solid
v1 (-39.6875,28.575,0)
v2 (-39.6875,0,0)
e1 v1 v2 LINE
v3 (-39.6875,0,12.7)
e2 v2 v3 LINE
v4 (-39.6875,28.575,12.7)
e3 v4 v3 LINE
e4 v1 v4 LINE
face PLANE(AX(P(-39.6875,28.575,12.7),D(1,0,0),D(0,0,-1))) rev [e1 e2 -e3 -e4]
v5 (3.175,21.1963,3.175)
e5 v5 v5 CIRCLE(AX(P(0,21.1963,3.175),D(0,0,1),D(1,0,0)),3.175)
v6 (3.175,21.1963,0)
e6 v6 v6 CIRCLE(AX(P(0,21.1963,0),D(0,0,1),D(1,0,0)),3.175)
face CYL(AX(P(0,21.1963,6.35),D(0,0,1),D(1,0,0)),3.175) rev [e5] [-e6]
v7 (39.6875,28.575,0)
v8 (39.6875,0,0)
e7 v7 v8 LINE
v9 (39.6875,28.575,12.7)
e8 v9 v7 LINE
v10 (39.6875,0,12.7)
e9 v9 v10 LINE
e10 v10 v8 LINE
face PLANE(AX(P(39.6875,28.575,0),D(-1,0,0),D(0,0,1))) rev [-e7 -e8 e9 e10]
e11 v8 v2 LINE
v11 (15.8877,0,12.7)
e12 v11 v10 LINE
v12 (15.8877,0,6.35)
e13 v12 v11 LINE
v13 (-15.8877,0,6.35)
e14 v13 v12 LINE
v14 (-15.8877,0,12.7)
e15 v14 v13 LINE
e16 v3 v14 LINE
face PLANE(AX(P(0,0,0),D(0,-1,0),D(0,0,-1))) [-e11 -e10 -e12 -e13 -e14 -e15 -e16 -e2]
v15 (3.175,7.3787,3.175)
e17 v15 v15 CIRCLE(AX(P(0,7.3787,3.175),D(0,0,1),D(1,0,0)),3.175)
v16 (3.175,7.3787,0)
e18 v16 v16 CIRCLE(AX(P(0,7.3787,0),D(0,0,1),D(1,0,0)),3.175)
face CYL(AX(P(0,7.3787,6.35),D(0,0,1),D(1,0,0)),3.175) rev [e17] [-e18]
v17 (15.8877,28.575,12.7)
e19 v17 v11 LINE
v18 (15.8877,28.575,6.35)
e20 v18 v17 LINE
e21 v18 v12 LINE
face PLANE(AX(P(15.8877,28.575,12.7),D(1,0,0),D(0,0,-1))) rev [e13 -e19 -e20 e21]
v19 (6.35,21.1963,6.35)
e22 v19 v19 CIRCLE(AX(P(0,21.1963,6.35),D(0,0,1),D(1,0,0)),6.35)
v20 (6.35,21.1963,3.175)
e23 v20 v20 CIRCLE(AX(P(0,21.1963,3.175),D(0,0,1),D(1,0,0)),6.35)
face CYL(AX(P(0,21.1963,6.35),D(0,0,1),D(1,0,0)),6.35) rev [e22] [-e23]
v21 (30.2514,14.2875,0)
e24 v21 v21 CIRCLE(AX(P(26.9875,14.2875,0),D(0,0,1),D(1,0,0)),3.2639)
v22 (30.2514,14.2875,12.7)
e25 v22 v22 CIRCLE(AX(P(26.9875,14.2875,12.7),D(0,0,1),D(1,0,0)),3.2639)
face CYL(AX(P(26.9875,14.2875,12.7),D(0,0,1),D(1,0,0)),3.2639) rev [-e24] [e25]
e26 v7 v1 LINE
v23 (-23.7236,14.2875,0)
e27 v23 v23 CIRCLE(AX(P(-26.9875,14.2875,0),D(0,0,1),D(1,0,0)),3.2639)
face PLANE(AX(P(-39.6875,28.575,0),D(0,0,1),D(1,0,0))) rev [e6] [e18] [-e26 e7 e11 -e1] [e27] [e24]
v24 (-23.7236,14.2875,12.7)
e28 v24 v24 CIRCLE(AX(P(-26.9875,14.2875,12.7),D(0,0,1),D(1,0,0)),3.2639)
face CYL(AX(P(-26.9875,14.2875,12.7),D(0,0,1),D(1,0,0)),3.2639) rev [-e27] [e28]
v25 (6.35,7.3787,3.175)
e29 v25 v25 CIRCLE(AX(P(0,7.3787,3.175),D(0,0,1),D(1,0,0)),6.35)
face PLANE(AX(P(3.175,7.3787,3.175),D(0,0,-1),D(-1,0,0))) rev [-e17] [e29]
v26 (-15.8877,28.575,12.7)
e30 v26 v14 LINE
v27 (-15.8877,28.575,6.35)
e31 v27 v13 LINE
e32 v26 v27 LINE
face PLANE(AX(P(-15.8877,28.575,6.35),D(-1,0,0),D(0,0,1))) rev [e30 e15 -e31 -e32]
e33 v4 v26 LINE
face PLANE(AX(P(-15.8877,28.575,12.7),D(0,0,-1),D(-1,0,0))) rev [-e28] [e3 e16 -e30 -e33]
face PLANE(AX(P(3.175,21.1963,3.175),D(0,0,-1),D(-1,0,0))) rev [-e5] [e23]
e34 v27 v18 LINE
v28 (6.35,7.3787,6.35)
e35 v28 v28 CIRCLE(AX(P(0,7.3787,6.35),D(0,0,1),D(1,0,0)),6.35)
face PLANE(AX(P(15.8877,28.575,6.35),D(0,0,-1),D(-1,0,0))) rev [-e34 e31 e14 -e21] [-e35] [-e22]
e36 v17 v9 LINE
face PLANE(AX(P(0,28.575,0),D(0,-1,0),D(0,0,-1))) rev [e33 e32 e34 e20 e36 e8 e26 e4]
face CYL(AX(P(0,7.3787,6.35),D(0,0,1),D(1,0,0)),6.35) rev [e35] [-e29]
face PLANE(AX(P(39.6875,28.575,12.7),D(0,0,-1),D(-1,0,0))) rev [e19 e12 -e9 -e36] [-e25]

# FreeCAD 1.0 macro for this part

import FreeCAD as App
import Part
import Sketcher

V = App.Vector
Q = App.Units.Quantity


def add_polygon(sketch, points):
    """Adds a closed chain of lines whose ends are joined by coincident constraints."""
    first, n = sketch.GeometryCount, len(points)
    for a, b in zip(points, points[1:] + points[:1]):
        sketch.addGeometry(Part.LineSegment(App.Vector(*a, 0), App.Vector(*b, 0)), False)
    for i in range(n):
        sketch.addConstraint(Sketcher.Constraint("Coincident", first + i, 2, first + (i + 1) % n, 1))

doc = App.newDocument("Part")
params = doc.addObject("Spreadsheet::Sheet", "Params")
for row, (alias, value) in enumerate([
    ("sketch1_height", "0.5 in"),
    ("sketch1_height2", "0.25 in"),
    ("sketch1_width", "3.125 in"),
    ("sketch1_width2", "0.937 in"),
    ("pad1_length", "1.125 in"),
    ("sketch2_diameter", "0.25 in"),
    ("hole_diameter", "0.25 in"),
    ("hole_depth", "0.25 in"),
    ("hole_cbore_diameter", "0.5 in"),
    ("hole_cbore_depth", "0.125 in"),
    ("sketch3_diameter", "0.257 in"),
    ("hole2_diameter", "0.257 in"),
], start=1):
    params.set(f"A{row}", alias)
    params.set(f"B{row}", "=" + value)
    params.setAlias(f"B{row}", alias)

body = doc.addObject("PartDesign::Body", "Body")

# Sketch on XZ plane
sketch1 = doc.addObject("Sketcher::SketchObject", "Sketch")
body.addObject(sketch1)
sketch1.AttachmentSupport = (doc.XZ_Plane, [""])
sketch1.MapMode = "FlatFace"
add_polygon(sketch1, [(39.6875, 0), (-39.6875, 0), (-39.6875, 12.7), (-15.8877, 12.7), (-15.8877, 6.35), (15.8877, 6.35), (15.8877, 12.7), (39.6875, 12.7)])  # lines 0-7
sketch1.addConstraint(Sketcher.Constraint("Horizontal", 0))
sketch1.addConstraint(Sketcher.Constraint("Vertical", 1))
sketch1.addConstraint(Sketcher.Constraint("Horizontal", 2))
sketch1.addConstraint(Sketcher.Constraint("Vertical", 3))
sketch1.addConstraint(Sketcher.Constraint("Horizontal", 4))
sketch1.addConstraint(Sketcher.Constraint("Vertical", 5))
sketch1.addConstraint(Sketcher.Constraint("Horizontal", 6))
sketch1.addConstraint(Sketcher.Constraint("Vertical", 7))
sketch1.addConstraint(Sketcher.Constraint("Symmetric", 0, 2, 7, 2, -1, 1))
sketch1.addConstraint(Sketcher.Constraint("Symmetric", 2, 2, 5, 2, -2))
sketch1.addConstraint(Sketcher.Constraint("DistanceY", 1, 1, 1, 2, Q("0.5 in")))
sketch1.addConstraint(Sketcher.Constraint("DistanceY", 3, 2, 3, 1, Q("0.25 in")))
sketch1.addConstraint(Sketcher.Constraint("DistanceX", 0, 2, 0, 1, Q("3.125 in")))
sketch1.addConstraint(Sketcher.Constraint("DistanceX", 2, 1, 2, 2, Q("0.937 in")))
sketch1.setExpression("Constraints[18]", "Params.sketch1_height")
sketch1.setExpression("Constraints[19]", "Params.sketch1_height2")
sketch1.setExpression("Constraints[20]", "Params.sketch1_width")
sketch1.setExpression("Constraints[21]", "Params.sketch1_width2")
pad1 = doc.addObject("PartDesign::Pad", "Pad")
body.addObject(pad1)
pad1.Profile = sketch1
pad1.setExpression("Length", "Params.pad1_length")
pad1.Reversed = True

# Sketch on XY plane
sketch2 = doc.addObject("Sketcher::SketchObject", "Sketch001")
body.addObject(sketch2)
sketch2.AttachmentSupport = (doc.XY_Plane, [""])
sketch2.MapMode = "FlatFace"
sketch2.AttachmentOffset = App.Placement(V(0, 0, 0.25 * 25.4), App.Rotation())
sketch2.addGeometry(Part.Circle(V(0, 7.3787, 0), V(0, 0, 1), 3.175), False)
sketch2.addGeometry(Part.Circle(V(0, 21.1963, 0), V(0, 0, 1), 3.175), False)
sketch2.addConstraint(Sketcher.Constraint("Equal", 0, 1))
sketch2.addConstraint(Sketcher.Constraint("PointOnObject", 0, 3, -2))
sketch2.addConstraint(Sketcher.Constraint("PointOnObject", 1, 3, -2))
sketch2.addConstraint(Sketcher.Constraint("Diameter", 0, Q("0.25 in")))
sketch2.addConstraint(Sketcher.Constraint("DistanceY", 0, 3, 1, 3, Q("0.544 in")))
sketch2.addConstraint(Sketcher.Constraint("DistanceY", -1, 1, 0, 3, Q("0.2905 in")))
sketch2.setExpression("Constraints[3]", "Params.sketch2_diameter")
doc.recompute()
hole = doc.addObject("PartDesign::Hole", "Hole")
body.addObject(hole)
hole.Profile = sketch2
hole.ThreadType = "None"
hole.setExpression("Diameter", "Params.hole_diameter")
hole.DepthType = "Dimension"
hole.setExpression("Depth", "Params.hole_depth")
hole.DrillPoint = "Angled"
hole.DrillPointAngle = 118
hole.HoleCutType = "Counterbore"
hole.setExpression("HoleCutDiameter", "Params.hole_cbore_diameter")
hole.setExpression("HoleCutDepth", "Params.hole_cbore_depth")

# Sketch on XY plane
sketch3 = doc.addObject("Sketcher::SketchObject", "Sketch002")
body.addObject(sketch3)
sketch3.AttachmentSupport = (doc.XY_Plane, [""])
sketch3.MapMode = "FlatFace"
sketch3.AttachmentOffset = App.Placement(V(0, 0, 0.5 * 25.4), App.Rotation())
sketch3.addGeometry(Part.Circle(V(-26.9875, 14.2875, 0), V(0, 0, 1), 3.2639), False)
sketch3.addGeometry(Part.Circle(V(26.9875, 14.2875, 0), V(0, 0, 1), 3.2639), False)
sketch3.addConstraint(Sketcher.Constraint("Equal", 0, 1))
sketch3.addConstraint(Sketcher.Constraint("Symmetric", 0, 3, 1, 3, -2))
sketch3.addConstraint(Sketcher.Constraint("Diameter", 0, Q("0.257 in")))
sketch3.addConstraint(Sketcher.Constraint("DistanceX", 0, 3, -1, 1, Q("1.0625 in")))
sketch3.addConstraint(Sketcher.Constraint("DistanceY", -1, 1, 0, 3, Q("0.5625 in")))
sketch3.setExpression("Constraints[2]", "Params.sketch3_diameter")
doc.recompute()
hole2 = doc.addObject("PartDesign::Hole", "Hole001")
body.addObject(hole2)
hole2.Profile = sketch3
hole2.ThreadType = "None"
hole2.setExpression("Diameter", "Params.hole2_diameter")
hole2.DepthType = "ThroughAll"

doc.recompute()
